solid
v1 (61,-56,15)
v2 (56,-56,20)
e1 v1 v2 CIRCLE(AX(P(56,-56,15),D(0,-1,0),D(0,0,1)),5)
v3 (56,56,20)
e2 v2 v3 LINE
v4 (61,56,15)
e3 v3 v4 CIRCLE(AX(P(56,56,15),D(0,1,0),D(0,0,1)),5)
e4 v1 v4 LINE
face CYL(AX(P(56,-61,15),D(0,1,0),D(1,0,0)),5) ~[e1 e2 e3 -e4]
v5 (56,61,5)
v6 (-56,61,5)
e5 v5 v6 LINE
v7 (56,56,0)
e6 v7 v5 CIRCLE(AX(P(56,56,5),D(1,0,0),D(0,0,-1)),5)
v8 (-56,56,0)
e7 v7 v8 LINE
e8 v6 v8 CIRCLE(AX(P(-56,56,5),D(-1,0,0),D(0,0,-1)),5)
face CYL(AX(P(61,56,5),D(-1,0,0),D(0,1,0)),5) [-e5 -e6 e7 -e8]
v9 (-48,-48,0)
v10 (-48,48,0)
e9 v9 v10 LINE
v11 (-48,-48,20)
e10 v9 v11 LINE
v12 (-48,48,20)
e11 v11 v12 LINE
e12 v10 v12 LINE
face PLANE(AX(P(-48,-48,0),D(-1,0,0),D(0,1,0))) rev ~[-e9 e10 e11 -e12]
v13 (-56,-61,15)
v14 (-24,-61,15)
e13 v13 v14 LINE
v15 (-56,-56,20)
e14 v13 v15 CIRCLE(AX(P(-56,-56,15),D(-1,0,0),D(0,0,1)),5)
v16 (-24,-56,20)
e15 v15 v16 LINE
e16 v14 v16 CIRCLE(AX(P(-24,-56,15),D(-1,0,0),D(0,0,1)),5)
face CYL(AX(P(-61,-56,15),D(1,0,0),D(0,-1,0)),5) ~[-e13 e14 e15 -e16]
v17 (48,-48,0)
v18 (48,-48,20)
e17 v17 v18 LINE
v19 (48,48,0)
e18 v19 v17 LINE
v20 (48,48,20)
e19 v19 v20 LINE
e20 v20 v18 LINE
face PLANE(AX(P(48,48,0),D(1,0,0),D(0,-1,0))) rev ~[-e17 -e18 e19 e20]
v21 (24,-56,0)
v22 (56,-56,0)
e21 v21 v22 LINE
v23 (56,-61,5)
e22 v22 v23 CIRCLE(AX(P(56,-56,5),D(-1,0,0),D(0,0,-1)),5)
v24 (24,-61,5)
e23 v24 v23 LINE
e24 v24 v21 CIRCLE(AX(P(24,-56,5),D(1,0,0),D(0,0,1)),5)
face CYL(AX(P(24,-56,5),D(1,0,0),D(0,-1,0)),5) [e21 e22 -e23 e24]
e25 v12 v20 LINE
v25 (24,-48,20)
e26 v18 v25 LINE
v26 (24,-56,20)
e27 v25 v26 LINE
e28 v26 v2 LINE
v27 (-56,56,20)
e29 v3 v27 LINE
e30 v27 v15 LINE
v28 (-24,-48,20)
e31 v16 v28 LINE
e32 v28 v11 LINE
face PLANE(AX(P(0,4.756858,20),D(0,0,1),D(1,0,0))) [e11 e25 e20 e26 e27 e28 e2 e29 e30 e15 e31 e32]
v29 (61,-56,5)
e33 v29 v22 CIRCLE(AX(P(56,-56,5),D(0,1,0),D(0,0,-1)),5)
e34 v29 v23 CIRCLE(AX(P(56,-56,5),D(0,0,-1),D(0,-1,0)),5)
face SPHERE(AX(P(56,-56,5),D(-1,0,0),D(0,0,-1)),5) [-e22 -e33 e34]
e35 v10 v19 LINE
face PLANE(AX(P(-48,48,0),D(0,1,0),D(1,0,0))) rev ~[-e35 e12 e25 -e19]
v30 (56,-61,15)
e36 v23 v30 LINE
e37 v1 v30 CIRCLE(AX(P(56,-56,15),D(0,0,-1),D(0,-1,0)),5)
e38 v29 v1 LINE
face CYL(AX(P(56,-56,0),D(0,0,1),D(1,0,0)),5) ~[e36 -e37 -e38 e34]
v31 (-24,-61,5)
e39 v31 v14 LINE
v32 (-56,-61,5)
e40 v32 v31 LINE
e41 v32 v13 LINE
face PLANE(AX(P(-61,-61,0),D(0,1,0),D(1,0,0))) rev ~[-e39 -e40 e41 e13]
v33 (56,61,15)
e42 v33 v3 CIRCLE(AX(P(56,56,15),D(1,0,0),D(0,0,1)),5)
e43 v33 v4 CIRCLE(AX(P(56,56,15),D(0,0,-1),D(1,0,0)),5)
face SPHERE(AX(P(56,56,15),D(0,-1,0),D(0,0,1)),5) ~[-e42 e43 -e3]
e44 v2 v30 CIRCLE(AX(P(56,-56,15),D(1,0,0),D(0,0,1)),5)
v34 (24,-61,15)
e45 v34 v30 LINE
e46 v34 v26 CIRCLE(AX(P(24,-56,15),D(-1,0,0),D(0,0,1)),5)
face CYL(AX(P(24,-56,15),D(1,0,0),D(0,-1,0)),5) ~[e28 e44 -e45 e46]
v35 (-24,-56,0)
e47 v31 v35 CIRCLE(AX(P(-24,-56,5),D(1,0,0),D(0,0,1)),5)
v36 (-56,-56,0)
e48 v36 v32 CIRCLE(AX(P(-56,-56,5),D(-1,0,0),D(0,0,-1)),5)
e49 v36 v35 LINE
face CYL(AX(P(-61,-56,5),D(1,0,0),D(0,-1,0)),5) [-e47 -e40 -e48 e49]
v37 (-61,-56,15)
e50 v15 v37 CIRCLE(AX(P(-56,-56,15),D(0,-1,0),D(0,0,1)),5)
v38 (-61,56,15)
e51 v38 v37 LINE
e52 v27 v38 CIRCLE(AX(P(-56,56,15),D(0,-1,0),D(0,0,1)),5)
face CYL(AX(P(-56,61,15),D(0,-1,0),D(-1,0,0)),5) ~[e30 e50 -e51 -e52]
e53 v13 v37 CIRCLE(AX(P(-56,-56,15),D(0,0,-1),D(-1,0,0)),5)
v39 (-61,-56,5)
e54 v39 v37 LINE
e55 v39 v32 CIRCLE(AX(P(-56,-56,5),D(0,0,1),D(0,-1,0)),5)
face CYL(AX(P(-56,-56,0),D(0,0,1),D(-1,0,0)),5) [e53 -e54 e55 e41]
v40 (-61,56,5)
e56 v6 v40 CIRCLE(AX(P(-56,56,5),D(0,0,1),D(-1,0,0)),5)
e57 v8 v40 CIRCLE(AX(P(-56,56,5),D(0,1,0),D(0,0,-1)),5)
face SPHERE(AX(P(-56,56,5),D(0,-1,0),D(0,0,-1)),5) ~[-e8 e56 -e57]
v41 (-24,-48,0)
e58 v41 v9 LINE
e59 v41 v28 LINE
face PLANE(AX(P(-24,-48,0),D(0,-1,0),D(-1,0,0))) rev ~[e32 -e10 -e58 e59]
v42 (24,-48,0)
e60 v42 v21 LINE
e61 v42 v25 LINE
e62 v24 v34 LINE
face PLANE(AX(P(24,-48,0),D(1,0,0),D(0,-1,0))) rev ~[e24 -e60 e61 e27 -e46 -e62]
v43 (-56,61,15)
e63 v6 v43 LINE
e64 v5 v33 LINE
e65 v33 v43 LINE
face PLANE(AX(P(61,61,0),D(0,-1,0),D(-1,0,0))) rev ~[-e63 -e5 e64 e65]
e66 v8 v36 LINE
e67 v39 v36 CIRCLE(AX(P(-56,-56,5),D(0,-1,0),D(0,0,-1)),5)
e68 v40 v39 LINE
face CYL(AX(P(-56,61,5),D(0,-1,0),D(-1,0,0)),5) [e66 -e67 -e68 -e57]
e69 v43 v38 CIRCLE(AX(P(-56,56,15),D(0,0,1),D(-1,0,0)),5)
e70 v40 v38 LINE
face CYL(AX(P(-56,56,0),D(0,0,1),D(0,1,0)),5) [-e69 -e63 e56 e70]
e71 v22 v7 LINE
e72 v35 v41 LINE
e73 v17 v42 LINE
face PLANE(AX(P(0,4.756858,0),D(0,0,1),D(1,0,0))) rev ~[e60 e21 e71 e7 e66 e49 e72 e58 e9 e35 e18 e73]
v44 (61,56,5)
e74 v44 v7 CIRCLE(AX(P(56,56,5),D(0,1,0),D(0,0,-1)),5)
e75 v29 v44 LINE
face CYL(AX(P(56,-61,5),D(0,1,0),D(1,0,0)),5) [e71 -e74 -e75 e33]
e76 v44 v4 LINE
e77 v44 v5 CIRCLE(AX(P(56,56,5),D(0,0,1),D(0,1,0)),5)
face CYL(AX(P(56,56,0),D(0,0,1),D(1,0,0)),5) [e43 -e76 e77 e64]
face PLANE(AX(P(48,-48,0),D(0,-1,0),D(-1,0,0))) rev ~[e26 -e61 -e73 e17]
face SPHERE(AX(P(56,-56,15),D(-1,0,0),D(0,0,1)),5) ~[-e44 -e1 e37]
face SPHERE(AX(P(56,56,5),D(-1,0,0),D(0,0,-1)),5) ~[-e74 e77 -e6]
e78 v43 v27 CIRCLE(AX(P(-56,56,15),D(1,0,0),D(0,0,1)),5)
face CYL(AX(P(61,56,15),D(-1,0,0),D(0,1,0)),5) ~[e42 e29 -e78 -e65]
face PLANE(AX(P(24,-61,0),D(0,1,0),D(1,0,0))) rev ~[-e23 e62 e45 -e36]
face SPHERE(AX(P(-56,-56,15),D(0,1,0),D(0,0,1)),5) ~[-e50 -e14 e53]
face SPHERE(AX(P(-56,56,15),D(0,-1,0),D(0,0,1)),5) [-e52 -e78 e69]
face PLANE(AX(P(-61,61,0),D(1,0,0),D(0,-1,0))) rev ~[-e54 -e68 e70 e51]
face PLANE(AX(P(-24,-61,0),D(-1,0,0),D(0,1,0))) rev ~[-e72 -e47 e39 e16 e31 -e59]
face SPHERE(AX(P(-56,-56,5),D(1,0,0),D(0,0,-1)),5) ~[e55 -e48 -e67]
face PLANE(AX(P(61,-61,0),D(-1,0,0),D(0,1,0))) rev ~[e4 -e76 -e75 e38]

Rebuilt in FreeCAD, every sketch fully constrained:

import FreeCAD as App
import Part
import Sketcher
Q = App.Units.Quantity


def edges_at(feature, points):
    """Names of the edges that pass closest to the given points."""
    edges = feature.Shape.Edges
    near = lambda p: min(range(len(edges)), key=lambda i: edges[i].distToShape(Part.Vertex(*p))[0])
    return sorted({f"Edge{near(p) + 1}" for p in points})

doc = App.newDocument("Part")
body = doc.addObject("PartDesign::Body", "Body")

sketch1 = body.newObject("Sketcher::SketchObject", "Sketch")
sketch1.AttachmentSupport = (doc.getObject("XY_Plane"), [""])
sketch1.MapMode = "FlatFace"
sketch1.addGeometry(Part.LineSegment(App.Vector(61, -61, 0), App.Vector(61, 61, 0)), False)
sketch1.addGeometry(Part.LineSegment(App.Vector(61, 61, 0), App.Vector(-61, 61, 0)), False)
sketch1.addGeometry(Part.LineSegment(App.Vector(-61, 61, 0), App.Vector(-61, -61, 0)), False)
sketch1.addGeometry(Part.LineSegment(App.Vector(-61, -61, 0), App.Vector(-24, -61, 0)), False)
sketch1.addGeometry(Part.LineSegment(App.Vector(-24, -61, 0), App.Vector(-24, -48, 0)), False)
sketch1.addGeometry(Part.LineSegment(App.Vector(-24, -48, 0), App.Vector(-48, -48, 0)), False)
sketch1.addGeometry(Part.LineSegment(App.Vector(-48, -48, 0), App.Vector(-48, 48, 0)), False)
sketch1.addGeometry(Part.LineSegment(App.Vector(-48, 48, 0), App.Vector(48, 48, 0)), False)
sketch1.addGeometry(Part.LineSegment(App.Vector(48, 48, 0), App.Vector(48, -48, 0)), False)
sketch1.addGeometry(Part.LineSegment(App.Vector(48, -48, 0), App.Vector(24, -48, 0)), False)
sketch1.addGeometry(Part.LineSegment(App.Vector(24, -48, 0), App.Vector(24, -61, 0)), False)
sketch1.addGeometry(Part.LineSegment(App.Vector(24, -61, 0), App.Vector(61, -61, 0)), False)
sketch1.addConstraint(Sketcher.Constraint("Coincident", 0, 2, 1, 1))
sketch1.addConstraint(Sketcher.Constraint("Coincident", 1, 2, 2, 1))
sketch1.addConstraint(Sketcher.Constraint("Coincident", 2, 2, 3, 1))
sketch1.addConstraint(Sketcher.Constraint("Coincident", 3, 2, 4, 1))
sketch1.addConstraint(Sketcher.Constraint("Coincident", 4, 2, 5, 1))
sketch1.addConstraint(Sketcher.Constraint("Coincident", 5, 2, 6, 1))
sketch1.addConstraint(Sketcher.Constraint("Coincident", 6, 2, 7, 1))
sketch1.addConstraint(Sketcher.Constraint("Coincident", 7, 2, 8, 1))
sketch1.addConstraint(Sketcher.Constraint("Coincident", 8, 2, 9, 1))
sketch1.addConstraint(Sketcher.Constraint("Coincident", 9, 2, 10, 1))
sketch1.addConstraint(Sketcher.Constraint("Coincident", 10, 2, 11, 1))
sketch1.addConstraint(Sketcher.Constraint("Coincident", 11, 2, 0, 1))
sketch1.addConstraint(Sketcher.Constraint("Vertical", 0))
sketch1.addConstraint(Sketcher.Constraint("Horizontal", 1))
sketch1.addConstraint(Sketcher.Constraint("Vertical", 2))
sketch1.addConstraint(Sketcher.Constraint("Horizontal", 3))
sketch1.addConstraint(Sketcher.Constraint("Vertical", 4))
sketch1.addConstraint(Sketcher.Constraint("Horizontal", 5))
sketch1.addConstraint(Sketcher.Constraint("Vertical", 6))
sketch1.addConstraint(Sketcher.Constraint("Horizontal", 7))
sketch1.addConstraint(Sketcher.Constraint("Vertical", 8))
sketch1.addConstraint(Sketcher.Constraint("Horizontal", 9))
sketch1.addConstraint(Sketcher.Constraint("Vertical", 10))
sketch1.addConstraint(Sketcher.Constraint("Horizontal", 11))
sketch1.addConstraint(Sketcher.Constraint("Symmetric", 0, 2, 2, 2, -1, 1))
sketch1.addConstraint(Sketcher.Constraint("Symmetric", 5, 2, 7, 2, -1, 1))
sketch1.addConstraint(Sketcher.Constraint("Symmetric", 4, 2, 9, 2, -2))
sketch1.addConstraint(Sketcher.Constraint("Horizontal", 3, 2, 10, 2))
sketch1.addConstraint(Sketcher.Constraint("Equal", 1, 0))
sketch1.addConstraint(Sketcher.Constraint("Equal", 7, 6))
sketch1.addConstraint(Sketcher.Constraint("DistanceX", 1, 2, 1, 1, Q("122 mm")))
sketch1.addConstraint(Sketcher.Constraint("DistanceX", 3, 1, 3, 2, Q("37 mm")))
sketch1.addConstraint(Sketcher.Constraint("DistanceX", 5, 2, 5, 1, Q("24 mm")))
pad1 = body.newObject("PartDesign::Pad", "Pad")
pad1.Profile = sketch1
pad1.Length = 20
doc.recompute()

fillet = body.newObject("PartDesign::Fillet", "Fillet")
fillet.Base = (pad1, edges_at(pad1, [
    (-61, 0, 20),
    (-42.5, -61, 20),
    (42.5, -61, 20),
    (61, 0, 20),
    (0, 61, 20),
    (42.5, -61, 0),
    (-42.5, -61, 0),
    (-61, 0, 0),
    (0, 61, 0),
    (61, 0, 0),
    (61, -61, 10),
    (-61, -61, 10),
    (61, 61, 10),
    (-61, 61, 10),
]))
fillet.Radius = 5

doc.recompute()
